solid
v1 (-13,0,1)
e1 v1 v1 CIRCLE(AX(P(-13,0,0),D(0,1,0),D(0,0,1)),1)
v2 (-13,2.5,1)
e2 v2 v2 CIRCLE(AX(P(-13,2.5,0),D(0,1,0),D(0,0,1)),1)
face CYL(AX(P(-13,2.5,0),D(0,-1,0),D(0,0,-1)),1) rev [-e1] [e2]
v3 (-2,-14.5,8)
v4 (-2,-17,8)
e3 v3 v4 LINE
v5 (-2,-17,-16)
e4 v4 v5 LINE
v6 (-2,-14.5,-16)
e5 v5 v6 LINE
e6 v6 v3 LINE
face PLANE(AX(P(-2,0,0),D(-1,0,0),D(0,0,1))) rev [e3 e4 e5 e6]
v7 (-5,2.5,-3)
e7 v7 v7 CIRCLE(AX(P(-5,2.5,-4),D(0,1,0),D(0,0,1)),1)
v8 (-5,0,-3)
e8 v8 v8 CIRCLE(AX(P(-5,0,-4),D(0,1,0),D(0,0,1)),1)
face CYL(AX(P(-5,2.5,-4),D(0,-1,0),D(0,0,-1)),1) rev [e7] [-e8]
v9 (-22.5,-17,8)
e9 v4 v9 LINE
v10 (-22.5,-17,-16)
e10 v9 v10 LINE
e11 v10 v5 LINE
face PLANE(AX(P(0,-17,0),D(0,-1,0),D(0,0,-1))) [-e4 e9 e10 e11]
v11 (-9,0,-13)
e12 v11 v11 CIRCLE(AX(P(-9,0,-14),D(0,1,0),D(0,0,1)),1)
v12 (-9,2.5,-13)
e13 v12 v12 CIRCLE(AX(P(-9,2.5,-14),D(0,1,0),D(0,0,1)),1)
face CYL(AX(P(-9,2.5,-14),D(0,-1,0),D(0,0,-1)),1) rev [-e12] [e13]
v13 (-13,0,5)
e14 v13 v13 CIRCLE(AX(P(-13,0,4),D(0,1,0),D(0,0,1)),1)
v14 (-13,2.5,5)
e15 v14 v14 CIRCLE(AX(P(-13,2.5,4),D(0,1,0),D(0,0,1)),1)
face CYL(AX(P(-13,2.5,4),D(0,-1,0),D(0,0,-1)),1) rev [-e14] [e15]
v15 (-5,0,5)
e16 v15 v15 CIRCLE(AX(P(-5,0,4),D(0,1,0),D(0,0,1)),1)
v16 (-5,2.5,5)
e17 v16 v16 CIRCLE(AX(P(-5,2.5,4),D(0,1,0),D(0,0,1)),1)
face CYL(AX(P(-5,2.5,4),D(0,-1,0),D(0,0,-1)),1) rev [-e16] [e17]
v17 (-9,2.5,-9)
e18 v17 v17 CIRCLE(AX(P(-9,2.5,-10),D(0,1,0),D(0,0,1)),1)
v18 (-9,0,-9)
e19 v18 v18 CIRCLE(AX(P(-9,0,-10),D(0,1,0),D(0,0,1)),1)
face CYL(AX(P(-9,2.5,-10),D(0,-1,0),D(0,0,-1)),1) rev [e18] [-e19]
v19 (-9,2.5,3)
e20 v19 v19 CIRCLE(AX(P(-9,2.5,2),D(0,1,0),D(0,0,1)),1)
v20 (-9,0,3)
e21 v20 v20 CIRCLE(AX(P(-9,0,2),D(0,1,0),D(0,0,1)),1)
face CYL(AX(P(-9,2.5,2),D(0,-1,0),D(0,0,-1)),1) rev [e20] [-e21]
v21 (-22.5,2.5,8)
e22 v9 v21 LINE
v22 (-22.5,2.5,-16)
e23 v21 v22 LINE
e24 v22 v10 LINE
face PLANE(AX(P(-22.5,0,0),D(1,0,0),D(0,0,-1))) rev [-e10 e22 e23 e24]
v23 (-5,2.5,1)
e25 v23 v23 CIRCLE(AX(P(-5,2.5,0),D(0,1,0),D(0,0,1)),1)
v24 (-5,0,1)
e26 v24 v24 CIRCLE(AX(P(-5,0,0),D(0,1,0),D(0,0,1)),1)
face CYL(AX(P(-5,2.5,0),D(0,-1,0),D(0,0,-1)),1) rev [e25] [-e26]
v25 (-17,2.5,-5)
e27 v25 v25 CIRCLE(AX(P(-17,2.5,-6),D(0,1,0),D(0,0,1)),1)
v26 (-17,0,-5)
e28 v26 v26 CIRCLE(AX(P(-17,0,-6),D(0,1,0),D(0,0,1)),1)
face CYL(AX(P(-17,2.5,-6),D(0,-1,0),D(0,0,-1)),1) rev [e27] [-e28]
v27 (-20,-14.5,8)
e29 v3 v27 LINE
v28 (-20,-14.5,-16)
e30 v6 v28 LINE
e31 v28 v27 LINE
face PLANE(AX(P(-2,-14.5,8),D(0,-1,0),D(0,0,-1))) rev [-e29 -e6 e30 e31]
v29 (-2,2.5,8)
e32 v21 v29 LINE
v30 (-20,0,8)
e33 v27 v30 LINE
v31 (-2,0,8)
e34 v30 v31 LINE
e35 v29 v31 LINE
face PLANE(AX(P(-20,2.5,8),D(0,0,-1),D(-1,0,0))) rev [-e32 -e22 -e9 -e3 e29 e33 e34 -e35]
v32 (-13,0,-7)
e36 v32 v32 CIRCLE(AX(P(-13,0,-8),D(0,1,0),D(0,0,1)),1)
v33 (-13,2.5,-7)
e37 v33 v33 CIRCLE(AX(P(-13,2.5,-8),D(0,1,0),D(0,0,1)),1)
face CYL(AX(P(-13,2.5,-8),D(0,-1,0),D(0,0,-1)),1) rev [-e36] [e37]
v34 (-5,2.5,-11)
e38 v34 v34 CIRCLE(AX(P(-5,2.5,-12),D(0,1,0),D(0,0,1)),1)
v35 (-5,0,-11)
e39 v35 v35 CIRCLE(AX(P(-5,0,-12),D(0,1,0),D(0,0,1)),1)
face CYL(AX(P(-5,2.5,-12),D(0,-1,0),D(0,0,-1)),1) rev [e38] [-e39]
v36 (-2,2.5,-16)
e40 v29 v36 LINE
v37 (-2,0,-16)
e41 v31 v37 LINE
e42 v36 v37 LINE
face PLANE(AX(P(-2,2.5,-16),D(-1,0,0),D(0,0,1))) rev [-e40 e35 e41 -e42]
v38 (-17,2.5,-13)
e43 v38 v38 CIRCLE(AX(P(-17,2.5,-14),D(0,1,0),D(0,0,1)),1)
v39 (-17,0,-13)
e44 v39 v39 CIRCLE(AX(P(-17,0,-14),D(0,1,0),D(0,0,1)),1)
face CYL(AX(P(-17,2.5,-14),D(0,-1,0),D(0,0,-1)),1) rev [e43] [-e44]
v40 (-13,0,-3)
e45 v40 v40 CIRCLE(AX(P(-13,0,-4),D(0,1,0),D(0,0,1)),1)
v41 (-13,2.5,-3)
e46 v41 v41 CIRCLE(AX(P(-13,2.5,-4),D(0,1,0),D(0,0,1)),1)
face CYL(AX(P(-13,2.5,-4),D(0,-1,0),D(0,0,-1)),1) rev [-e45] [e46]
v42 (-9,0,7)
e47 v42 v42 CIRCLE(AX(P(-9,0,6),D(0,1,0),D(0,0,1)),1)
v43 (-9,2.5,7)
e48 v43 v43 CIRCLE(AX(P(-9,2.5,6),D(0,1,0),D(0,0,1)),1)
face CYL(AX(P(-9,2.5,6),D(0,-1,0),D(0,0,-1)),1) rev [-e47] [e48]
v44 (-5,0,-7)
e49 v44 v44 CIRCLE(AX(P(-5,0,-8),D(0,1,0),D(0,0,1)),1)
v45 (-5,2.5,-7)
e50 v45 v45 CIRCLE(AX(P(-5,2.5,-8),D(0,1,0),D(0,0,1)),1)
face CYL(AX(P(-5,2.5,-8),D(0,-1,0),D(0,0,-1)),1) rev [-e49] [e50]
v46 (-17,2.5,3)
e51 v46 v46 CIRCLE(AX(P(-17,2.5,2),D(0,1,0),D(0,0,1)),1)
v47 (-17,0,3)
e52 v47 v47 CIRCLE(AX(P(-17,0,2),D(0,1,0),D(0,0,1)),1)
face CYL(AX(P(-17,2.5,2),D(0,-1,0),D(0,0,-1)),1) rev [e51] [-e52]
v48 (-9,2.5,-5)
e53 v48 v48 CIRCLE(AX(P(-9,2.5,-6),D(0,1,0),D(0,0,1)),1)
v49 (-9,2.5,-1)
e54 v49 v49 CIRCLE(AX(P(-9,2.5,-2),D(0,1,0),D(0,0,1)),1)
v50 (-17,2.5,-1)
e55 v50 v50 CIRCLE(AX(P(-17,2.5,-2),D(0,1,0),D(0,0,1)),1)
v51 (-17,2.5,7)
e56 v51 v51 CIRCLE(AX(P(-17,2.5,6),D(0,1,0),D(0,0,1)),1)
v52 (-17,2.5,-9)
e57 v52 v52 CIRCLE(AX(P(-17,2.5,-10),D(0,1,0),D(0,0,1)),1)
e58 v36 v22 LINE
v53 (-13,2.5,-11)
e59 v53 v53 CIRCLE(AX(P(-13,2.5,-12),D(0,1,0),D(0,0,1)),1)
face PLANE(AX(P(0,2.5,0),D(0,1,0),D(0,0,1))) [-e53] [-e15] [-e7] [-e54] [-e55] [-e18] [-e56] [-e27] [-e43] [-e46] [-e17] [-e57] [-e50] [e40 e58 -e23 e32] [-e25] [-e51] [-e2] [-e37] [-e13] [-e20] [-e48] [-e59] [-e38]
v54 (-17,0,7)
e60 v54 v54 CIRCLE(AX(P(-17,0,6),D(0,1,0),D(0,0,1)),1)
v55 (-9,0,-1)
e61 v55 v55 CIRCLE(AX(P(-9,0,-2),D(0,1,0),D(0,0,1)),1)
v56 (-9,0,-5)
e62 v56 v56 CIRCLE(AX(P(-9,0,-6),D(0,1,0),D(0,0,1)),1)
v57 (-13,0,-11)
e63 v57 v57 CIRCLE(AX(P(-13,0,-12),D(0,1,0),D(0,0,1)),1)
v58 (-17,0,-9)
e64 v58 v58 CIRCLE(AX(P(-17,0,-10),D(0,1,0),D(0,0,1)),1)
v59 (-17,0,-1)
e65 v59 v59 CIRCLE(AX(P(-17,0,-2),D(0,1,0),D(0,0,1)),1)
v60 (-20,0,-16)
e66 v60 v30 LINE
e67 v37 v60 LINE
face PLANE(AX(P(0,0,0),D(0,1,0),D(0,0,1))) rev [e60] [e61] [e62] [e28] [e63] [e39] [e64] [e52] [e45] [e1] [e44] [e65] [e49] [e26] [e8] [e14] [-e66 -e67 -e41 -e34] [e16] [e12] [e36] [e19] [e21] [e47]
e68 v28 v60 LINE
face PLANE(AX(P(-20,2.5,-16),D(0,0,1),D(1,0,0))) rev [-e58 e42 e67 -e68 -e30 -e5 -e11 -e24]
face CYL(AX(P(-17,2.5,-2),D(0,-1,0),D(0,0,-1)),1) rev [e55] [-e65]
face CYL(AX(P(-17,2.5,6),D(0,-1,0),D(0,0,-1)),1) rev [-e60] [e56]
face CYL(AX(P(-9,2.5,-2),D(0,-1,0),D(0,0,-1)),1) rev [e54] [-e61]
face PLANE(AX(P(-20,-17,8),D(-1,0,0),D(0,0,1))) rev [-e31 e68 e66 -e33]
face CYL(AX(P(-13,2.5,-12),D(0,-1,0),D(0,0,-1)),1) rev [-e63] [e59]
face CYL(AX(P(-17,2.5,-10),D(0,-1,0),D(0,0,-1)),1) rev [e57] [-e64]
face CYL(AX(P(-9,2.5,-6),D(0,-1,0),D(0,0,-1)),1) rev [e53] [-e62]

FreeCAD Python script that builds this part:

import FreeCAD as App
import Part
import Sketcher


def add_polygon(sketch, points):
    """Adds a closed chain of lines whose ends are joined by coincident constraints."""
    first, n = sketch.GeometryCount, len(points)
    for a, b in zip(points, points[1:] + points[:1]):
        sketch.addGeometry(Part.LineSegment(App.Vector(*a, 0), App.Vector(*b, 0)), False)
    for i in range(n):
        sketch.addConstraint(Sketcher.Constraint("Coincident", first + i, 2, first + (i + 1) % n, 1))

doc = App.newDocument("Part")
body = doc.addObject("PartDesign::Body", "Body")

# Sketch on XZ plane
sketch1 = doc.addObject("Sketcher::SketchObject", "Sketch")
body.addObject(sketch1)
sketch1.AttachmentSupport = (doc.XZ_Plane, [""])
sketch1.MapMode = "FlatFace"
add_polygon(sketch1, [(-20, -16), (-20, 8), (-2, 8), (-2, -16)])  # lines 0-3
sketch1.addGeometry(Part.Circle(App.Vector(-17, 6, 0), App.Vector(0, 0, 1), 1), False)  # 4
sketch1.addGeometry(Part.Circle(App.Vector(-17, 2, 0), App.Vector(0, 0, 1), 1), False)  # 5
sketch1.addGeometry(Part.Circle(App.Vector(-13, 4, 0), App.Vector(0, 0, 1), 1), False)  # 6
sketch1.addGeometry(Part.Circle(App.Vector(-17, -2, 0), App.Vector(0, 0, 1), 1), False)  # 7
sketch1.addGeometry(Part.Circle(App.Vector(-13, 0, 0), App.Vector(0, 0, 1), 1), False)  # 8
sketch1.addGeometry(Part.Circle(App.Vector(-9, 6, 0), App.Vector(0, 0, 1), 1), False)  # 9
sketch1.addGeometry(Part.Circle(App.Vector(-9, 2, 0), App.Vector(0, 0, 1), 1), False)  # 10
sketch1.addGeometry(Part.Circle(App.Vector(-5, 4, 0), App.Vector(0, 0, 1), 1), False)  # 11
sketch1.addGeometry(Part.Circle(App.Vector(-9, -2, 0), App.Vector(0, 0, 1), 1), False)  # 12
sketch1.addGeometry(Part.Circle(App.Vector(-5, 0, 0), App.Vector(0, 0, 1), 1), False)  # 13
sketch1.addGeometry(Part.Circle(App.Vector(-17, -6, 0), App.Vector(0, 0, 1), 1), False)  # 14
sketch1.addGeometry(Part.Circle(App.Vector(-13, -4, 0), App.Vector(0, 0, 1), 1), False)  # 15
sketch1.addGeometry(Part.Circle(App.Vector(-13, -8, 0), App.Vector(0, 0, 1), 1), False)  # 16
sketch1.addGeometry(Part.Circle(App.Vector(-17, -10, 0), App.Vector(0, 0, 1), 1), False)  # 17
sketch1.addGeometry(Part.Circle(App.Vector(-17, -14, 0), App.Vector(0, 0, 1), 1), False)  # 18
sketch1.addGeometry(Part.Circle(App.Vector(-13, -12, 0), App.Vector(0, 0, 1), 1), False)  # 19
sketch1.addGeometry(Part.Circle(App.Vector(-9, -6, 0), App.Vector(0, 0, 1), 1), False)  # 20
sketch1.addGeometry(Part.Circle(App.Vector(-5, -4, 0), App.Vector(0, 0, 1), 1), False)  # 21
sketch1.addGeometry(Part.Circle(App.Vector(-5, -8, 0), App.Vector(0, 0, 1), 1), False)  # 22
sketch1.addGeometry(Part.Circle(App.Vector(-9, -10, 0), App.Vector(0, 0, 1), 1), False)  # 23
sketch1.addGeometry(Part.Circle(App.Vector(-9, -14, 0), App.Vector(0, 0, 1), 1), False)  # 24
sketch1.addGeometry(Part.Circle(App.Vector(-5, -12, 0), App.Vector(0, 0, 1), 1), False)  # 25
sketch1.addConstraint(Sketcher.Constraint("Vertical", 0))
sketch1.addConstraint(Sketcher.Constraint("Horizontal", 1))
sketch1.addConstraint(Sketcher.Constraint("Vertical", 2))
sketch1.addConstraint(Sketcher.Constraint("Horizontal", 3))
sketch1.addConstraint(Sketcher.Constraint("Equal", 4, 5))
sketch1.addConstraint(Sketcher.Constraint("Equal", 5, 6))
sketch1.addConstraint(Sketcher.Constraint("Equal", 6, 7))
sketch1.addConstraint(Sketcher.Constraint("Equal", 7, 8))
sketch1.addConstraint(Sketcher.Constraint("Equal", 8, 9))
sketch1.addConstraint(Sketcher.Constraint("Equal", 9, 10))
sketch1.addConstraint(Sketcher.Constraint("Equal", 10, 11))
sketch1.addConstraint(Sketcher.Constraint("Equal", 11, 12))
sketch1.addConstraint(Sketcher.Constraint("Equal", 12, 13))
sketch1.addConstraint(Sketcher.Constraint("Equal", 13, 14))
sketch1.addConstraint(Sketcher.Constraint("Equal", 14, 15))
sketch1.addConstraint(Sketcher.Constraint("Equal", 15, 16))
sketch1.addConstraint(Sketcher.Constraint("Equal", 16, 17))
sketch1.addConstraint(Sketcher.Constraint("Equal", 17, 18))
sketch1.addConstraint(Sketcher.Constraint("Equal", 18, 19))
sketch1.addConstraint(Sketcher.Constraint("Equal", 19, 20))
sketch1.addConstraint(Sketcher.Constraint("Equal", 20, 21))
sketch1.addConstraint(Sketcher.Constraint("Equal", 21, 22))
sketch1.addConstraint(Sketcher.Constraint("Equal", 22, 23))
sketch1.addConstraint(Sketcher.Constraint("Equal", 23, 24))
sketch1.addConstraint(Sketcher.Constraint("Equal", 24, 25))
sketch1.addConstraint(Sketcher.Constraint("Symmetric", 5, 3, 7, 3, -1))
sketch1.addConstraint(Sketcher.Constraint("Symmetric", 10, 3, 12, 3, -1))
sketch1.addConstraint(Sketcher.Constraint("Symmetric", 4, 3, 14, 3, -1))
sketch1.addConstraint(Sketcher.Constraint("Symmetric", 6, 3, 15, 3, -1))
sketch1.addConstraint(Sketcher.Constraint("Symmetric", 9, 3, 20, 3, -1))
sketch1.addConstraint(Sketcher.Constraint("Symmetric", 11, 3, 21, 3, -1))
sketch1.addConstraint(Sketcher.Constraint("PointOnObject", 8, 3, -1))
sketch1.addConstraint(Sketcher.Constraint("PointOnObject", 13, 3, -1))
sketch1.addConstraint(Sketcher.Constraint("Horizontal", 4, 3, 9, 3))
sketch1.addConstraint(Sketcher.Constraint("Horizontal", 5, 3, 10, 3))
sketch1.addConstraint(Sketcher.Constraint("Horizontal", 6, 3, 11, 3))
sketch1.addConstraint(Sketcher.Constraint("Horizontal", 16, 3, 22, 3))
sketch1.addConstraint(Sketcher.Constraint("Horizontal", 17, 3, 23, 3))
sketch1.addConstraint(Sketcher.Constraint("Horizontal", 18, 3, 24, 3))
sketch1.addConstraint(Sketcher.Constraint("Horizontal", 19, 3, 25, 3))
sketch1.addConstraint(Sketcher.Constraint("Vertical", 4, 3, 5, 3))
sketch1.addConstraint(Sketcher.Constraint("Vertical", 6, 3, 8, 3))
sketch1.addConstraint(Sketcher.Constraint("Vertical", 9, 3, 10, 3))
sketch1.addConstraint(Sketcher.Constraint("Vertical", 11, 3, 13, 3))
sketch1.addConstraint(Sketcher.Constraint("Vertical", 15, 3, 16, 3))
sketch1.addConstraint(Sketcher.Constraint("Vertical", 14, 3, 17, 3))
sketch1.addConstraint(Sketcher.Constraint("Vertical", 17, 3, 18, 3))
sketch1.addConstraint(Sketcher.Constraint("Vertical", 16, 3, 19, 3))
sketch1.addConstraint(Sketcher.Constraint("Vertical", 21, 3, 22, 3))
sketch1.addConstraint(Sketcher.Constraint("Vertical", 20, 3, 23, 3))
sketch1.addConstraint(Sketcher.Constraint("Vertical", 23, 3, 24, 3))
sketch1.addConstraint(Sketcher.Constraint("Vertical", 22, 3, 25, 3))
sketch1.addConstraint(Sketcher.Constraint("Diameter", 4, 2.0))
sketch1.addConstraint(Sketcher.Constraint("DistanceX", 1, 1, 1, 2, 18.0))
sketch1.addConstraint(Sketcher.Constraint("DistanceY", 0, 1, 0, 2, 24.0))
sketch1.addConstraint(Sketcher.Constraint("DistanceX", 4, 3, -1, 1, 17.0))
sketch1.addConstraint(Sketcher.Constraint("DistanceY", -1, 1, 4, 3, 6.0))
sketch1.addConstraint(Sketcher.Constraint("DistanceY", -1, 1, 5, 3, 2.0))
sketch1.addConstraint(Sketcher.Constraint("DistanceX", 6, 3, -1, 1, 13.0))
sketch1.addConstraint(Sketcher.Constraint("DistanceY", -1, 1, 6, 3, 4.0))
sketch1.addConstraint(Sketcher.Constraint("DistanceX", 9, 3, -1, 1, 9.0))
sketch1.addConstraint(Sketcher.Constraint("DistanceX", 11, 3, -1, 1, 5.0))
sketch1.addConstraint(Sketcher.Constraint("DistanceY", 16, 3, -1, 1, 8.0))
sketch1.addConstraint(Sketcher.Constraint("DistanceY", 17, 3, -1, 1, 10.0))
sketch1.addConstraint(Sketcher.Constraint("DistanceY", 18, 3, -1, 1, 14.0))
sketch1.addConstraint(Sketcher.Constraint("DistanceY", 19, 3, -1, 1, 12.0))
sketch1.addConstraint(Sketcher.Constraint("DistanceX", 0, 2, -1, 1, 20.0))
sketch1.addConstraint(Sketcher.Constraint("DistanceY", -1, 1, 0, 2, 8.0))
pad1 = doc.addObject("PartDesign::Pad", "Pad")
body.addObject(pad1)
pad1.Profile = sketch1
pad1.Length = 2.5
pad1.Reversed = True

# Sketch on YZ plane
sketch2 = doc.addObject("Sketcher::SketchObject", "Sketch001")
body.addObject(sketch2)
sketch2.AttachmentSupport = (doc.YZ_Plane, [""])
sketch2.MapMode = "FlatFace"
sketch2.AttachmentOffset = App.Placement(App.Vector(0, 0, -20), App.Rotation())
add_polygon(sketch2, [(2.5, -16), (0, -16), (0, 8), (2.5, 8)])  # lines 0-3
sketch2.addConstraint(Sketcher.Constraint("Horizontal", 0))
sketch2.addConstraint(Sketcher.Constraint("Vertical", 1))
sketch2.addConstraint(Sketcher.Constraint("Horizontal", 2))
sketch2.addConstraint(Sketcher.Constraint("Vertical", 3))
sketch2.addConstraint(Sketcher.Constraint("PointOnObject", 0, 2, -2))
sketch2.addConstraint(Sketcher.Constraint("DistanceY", 1, 1, 1, 2, 24.0))
sketch2.addConstraint(Sketcher.Constraint("DistanceX", 0, 2, 0, 1, 2.5))
sketch2.addConstraint(Sketcher.Constraint("DistanceY", 0, 2, -1, 1, 16.0))
pad2 = doc.addObject("PartDesign::Pad", "Pad001")
body.addObject(pad2)
pad2.Profile = sketch2
pad2.Length = 2.5
pad2.Reversed = True

# Sketch on XZ plane
sketch3 = doc.addObject("Sketcher::SketchObject", "Sketch002")
body.addObject(sketch3)
sketch3.AttachmentSupport = (doc.XZ_Plane, [""])
sketch3.MapMode = "FlatFace"
add_polygon(sketch3, [(-22.5, 8), (-22.5, -16), (-20, -16), (-20, 8)])  # lines 0-3
sketch3.addConstraint(Sketcher.Constraint("Vertical", 0))
sketch3.addConstraint(Sketcher.Constraint("Horizontal", 1))
sketch3.addConstraint(Sketcher.Constraint("Vertical", 2))
sketch3.addConstraint(Sketcher.Constraint("Horizontal", 3))
sketch3.addConstraint(Sketcher.Constraint("DistanceY", 0, 2, 0, 1, 24.0))
sketch3.addConstraint(Sketcher.Constraint("DistanceX", 1, 1, 1, 2, 2.5))
sketch3.addConstraint(Sketcher.Constraint("DistanceY", 0, 2, -1, 1, 16.0))
sketch3.addConstraint(Sketcher.Constraint("DistanceX", 1, 2, -1, 1, 20.0))
pad3 = doc.addObject("PartDesign::Pad", "Pad002")
body.addObject(pad3)
pad3.Profile = sketch3
pad3.Length = 17

# Sketch on YZ plane
sketch4 = doc.addObject("Sketcher::SketchObject", "Sketch003")
body.addObject(sketch4)
sketch4.AttachmentSupport = (doc.YZ_Plane, [""])
sketch4.MapMode = "FlatFace"
sketch4.AttachmentOffset = App.Placement(App.Vector(0, 0, -20), App.Rotation())
add_polygon(sketch4, [(-14.5, 8), (-17, 8), (-17, -16), (-14.5, -16)])  # lines 0-3
sketch4.addConstraint(Sketcher.Constraint("Horizontal", 0))
sketch4.addConstraint(Sketcher.Constraint("Vertical", 1))
sketch4.addConstraint(Sketcher.Constraint("Horizontal", 2))
sketch4.addConstraint(Sketcher.Constraint("Vertical", 3))
sketch4.addConstraint(Sketcher.Constraint("DistanceY", 1, 2, 1, 1, 24.0))
sketch4.addConstraint(Sketcher.Constraint("DistanceX", 0, 2, 0, 1, 2.5))
sketch4.addConstraint(Sketcher.Constraint("DistanceX", 0, 2, -1, 1, 17.0))
sketch4.addConstraint(Sketcher.Constraint("DistanceY", -1, 1, 0, 2, 8.0))
pad4 = doc.addObject("PartDesign::Pad", "Pad003")
body.addObject(pad4)
pad4.Profile = sketch4
pad4.Length = 18

doc.recompute()
